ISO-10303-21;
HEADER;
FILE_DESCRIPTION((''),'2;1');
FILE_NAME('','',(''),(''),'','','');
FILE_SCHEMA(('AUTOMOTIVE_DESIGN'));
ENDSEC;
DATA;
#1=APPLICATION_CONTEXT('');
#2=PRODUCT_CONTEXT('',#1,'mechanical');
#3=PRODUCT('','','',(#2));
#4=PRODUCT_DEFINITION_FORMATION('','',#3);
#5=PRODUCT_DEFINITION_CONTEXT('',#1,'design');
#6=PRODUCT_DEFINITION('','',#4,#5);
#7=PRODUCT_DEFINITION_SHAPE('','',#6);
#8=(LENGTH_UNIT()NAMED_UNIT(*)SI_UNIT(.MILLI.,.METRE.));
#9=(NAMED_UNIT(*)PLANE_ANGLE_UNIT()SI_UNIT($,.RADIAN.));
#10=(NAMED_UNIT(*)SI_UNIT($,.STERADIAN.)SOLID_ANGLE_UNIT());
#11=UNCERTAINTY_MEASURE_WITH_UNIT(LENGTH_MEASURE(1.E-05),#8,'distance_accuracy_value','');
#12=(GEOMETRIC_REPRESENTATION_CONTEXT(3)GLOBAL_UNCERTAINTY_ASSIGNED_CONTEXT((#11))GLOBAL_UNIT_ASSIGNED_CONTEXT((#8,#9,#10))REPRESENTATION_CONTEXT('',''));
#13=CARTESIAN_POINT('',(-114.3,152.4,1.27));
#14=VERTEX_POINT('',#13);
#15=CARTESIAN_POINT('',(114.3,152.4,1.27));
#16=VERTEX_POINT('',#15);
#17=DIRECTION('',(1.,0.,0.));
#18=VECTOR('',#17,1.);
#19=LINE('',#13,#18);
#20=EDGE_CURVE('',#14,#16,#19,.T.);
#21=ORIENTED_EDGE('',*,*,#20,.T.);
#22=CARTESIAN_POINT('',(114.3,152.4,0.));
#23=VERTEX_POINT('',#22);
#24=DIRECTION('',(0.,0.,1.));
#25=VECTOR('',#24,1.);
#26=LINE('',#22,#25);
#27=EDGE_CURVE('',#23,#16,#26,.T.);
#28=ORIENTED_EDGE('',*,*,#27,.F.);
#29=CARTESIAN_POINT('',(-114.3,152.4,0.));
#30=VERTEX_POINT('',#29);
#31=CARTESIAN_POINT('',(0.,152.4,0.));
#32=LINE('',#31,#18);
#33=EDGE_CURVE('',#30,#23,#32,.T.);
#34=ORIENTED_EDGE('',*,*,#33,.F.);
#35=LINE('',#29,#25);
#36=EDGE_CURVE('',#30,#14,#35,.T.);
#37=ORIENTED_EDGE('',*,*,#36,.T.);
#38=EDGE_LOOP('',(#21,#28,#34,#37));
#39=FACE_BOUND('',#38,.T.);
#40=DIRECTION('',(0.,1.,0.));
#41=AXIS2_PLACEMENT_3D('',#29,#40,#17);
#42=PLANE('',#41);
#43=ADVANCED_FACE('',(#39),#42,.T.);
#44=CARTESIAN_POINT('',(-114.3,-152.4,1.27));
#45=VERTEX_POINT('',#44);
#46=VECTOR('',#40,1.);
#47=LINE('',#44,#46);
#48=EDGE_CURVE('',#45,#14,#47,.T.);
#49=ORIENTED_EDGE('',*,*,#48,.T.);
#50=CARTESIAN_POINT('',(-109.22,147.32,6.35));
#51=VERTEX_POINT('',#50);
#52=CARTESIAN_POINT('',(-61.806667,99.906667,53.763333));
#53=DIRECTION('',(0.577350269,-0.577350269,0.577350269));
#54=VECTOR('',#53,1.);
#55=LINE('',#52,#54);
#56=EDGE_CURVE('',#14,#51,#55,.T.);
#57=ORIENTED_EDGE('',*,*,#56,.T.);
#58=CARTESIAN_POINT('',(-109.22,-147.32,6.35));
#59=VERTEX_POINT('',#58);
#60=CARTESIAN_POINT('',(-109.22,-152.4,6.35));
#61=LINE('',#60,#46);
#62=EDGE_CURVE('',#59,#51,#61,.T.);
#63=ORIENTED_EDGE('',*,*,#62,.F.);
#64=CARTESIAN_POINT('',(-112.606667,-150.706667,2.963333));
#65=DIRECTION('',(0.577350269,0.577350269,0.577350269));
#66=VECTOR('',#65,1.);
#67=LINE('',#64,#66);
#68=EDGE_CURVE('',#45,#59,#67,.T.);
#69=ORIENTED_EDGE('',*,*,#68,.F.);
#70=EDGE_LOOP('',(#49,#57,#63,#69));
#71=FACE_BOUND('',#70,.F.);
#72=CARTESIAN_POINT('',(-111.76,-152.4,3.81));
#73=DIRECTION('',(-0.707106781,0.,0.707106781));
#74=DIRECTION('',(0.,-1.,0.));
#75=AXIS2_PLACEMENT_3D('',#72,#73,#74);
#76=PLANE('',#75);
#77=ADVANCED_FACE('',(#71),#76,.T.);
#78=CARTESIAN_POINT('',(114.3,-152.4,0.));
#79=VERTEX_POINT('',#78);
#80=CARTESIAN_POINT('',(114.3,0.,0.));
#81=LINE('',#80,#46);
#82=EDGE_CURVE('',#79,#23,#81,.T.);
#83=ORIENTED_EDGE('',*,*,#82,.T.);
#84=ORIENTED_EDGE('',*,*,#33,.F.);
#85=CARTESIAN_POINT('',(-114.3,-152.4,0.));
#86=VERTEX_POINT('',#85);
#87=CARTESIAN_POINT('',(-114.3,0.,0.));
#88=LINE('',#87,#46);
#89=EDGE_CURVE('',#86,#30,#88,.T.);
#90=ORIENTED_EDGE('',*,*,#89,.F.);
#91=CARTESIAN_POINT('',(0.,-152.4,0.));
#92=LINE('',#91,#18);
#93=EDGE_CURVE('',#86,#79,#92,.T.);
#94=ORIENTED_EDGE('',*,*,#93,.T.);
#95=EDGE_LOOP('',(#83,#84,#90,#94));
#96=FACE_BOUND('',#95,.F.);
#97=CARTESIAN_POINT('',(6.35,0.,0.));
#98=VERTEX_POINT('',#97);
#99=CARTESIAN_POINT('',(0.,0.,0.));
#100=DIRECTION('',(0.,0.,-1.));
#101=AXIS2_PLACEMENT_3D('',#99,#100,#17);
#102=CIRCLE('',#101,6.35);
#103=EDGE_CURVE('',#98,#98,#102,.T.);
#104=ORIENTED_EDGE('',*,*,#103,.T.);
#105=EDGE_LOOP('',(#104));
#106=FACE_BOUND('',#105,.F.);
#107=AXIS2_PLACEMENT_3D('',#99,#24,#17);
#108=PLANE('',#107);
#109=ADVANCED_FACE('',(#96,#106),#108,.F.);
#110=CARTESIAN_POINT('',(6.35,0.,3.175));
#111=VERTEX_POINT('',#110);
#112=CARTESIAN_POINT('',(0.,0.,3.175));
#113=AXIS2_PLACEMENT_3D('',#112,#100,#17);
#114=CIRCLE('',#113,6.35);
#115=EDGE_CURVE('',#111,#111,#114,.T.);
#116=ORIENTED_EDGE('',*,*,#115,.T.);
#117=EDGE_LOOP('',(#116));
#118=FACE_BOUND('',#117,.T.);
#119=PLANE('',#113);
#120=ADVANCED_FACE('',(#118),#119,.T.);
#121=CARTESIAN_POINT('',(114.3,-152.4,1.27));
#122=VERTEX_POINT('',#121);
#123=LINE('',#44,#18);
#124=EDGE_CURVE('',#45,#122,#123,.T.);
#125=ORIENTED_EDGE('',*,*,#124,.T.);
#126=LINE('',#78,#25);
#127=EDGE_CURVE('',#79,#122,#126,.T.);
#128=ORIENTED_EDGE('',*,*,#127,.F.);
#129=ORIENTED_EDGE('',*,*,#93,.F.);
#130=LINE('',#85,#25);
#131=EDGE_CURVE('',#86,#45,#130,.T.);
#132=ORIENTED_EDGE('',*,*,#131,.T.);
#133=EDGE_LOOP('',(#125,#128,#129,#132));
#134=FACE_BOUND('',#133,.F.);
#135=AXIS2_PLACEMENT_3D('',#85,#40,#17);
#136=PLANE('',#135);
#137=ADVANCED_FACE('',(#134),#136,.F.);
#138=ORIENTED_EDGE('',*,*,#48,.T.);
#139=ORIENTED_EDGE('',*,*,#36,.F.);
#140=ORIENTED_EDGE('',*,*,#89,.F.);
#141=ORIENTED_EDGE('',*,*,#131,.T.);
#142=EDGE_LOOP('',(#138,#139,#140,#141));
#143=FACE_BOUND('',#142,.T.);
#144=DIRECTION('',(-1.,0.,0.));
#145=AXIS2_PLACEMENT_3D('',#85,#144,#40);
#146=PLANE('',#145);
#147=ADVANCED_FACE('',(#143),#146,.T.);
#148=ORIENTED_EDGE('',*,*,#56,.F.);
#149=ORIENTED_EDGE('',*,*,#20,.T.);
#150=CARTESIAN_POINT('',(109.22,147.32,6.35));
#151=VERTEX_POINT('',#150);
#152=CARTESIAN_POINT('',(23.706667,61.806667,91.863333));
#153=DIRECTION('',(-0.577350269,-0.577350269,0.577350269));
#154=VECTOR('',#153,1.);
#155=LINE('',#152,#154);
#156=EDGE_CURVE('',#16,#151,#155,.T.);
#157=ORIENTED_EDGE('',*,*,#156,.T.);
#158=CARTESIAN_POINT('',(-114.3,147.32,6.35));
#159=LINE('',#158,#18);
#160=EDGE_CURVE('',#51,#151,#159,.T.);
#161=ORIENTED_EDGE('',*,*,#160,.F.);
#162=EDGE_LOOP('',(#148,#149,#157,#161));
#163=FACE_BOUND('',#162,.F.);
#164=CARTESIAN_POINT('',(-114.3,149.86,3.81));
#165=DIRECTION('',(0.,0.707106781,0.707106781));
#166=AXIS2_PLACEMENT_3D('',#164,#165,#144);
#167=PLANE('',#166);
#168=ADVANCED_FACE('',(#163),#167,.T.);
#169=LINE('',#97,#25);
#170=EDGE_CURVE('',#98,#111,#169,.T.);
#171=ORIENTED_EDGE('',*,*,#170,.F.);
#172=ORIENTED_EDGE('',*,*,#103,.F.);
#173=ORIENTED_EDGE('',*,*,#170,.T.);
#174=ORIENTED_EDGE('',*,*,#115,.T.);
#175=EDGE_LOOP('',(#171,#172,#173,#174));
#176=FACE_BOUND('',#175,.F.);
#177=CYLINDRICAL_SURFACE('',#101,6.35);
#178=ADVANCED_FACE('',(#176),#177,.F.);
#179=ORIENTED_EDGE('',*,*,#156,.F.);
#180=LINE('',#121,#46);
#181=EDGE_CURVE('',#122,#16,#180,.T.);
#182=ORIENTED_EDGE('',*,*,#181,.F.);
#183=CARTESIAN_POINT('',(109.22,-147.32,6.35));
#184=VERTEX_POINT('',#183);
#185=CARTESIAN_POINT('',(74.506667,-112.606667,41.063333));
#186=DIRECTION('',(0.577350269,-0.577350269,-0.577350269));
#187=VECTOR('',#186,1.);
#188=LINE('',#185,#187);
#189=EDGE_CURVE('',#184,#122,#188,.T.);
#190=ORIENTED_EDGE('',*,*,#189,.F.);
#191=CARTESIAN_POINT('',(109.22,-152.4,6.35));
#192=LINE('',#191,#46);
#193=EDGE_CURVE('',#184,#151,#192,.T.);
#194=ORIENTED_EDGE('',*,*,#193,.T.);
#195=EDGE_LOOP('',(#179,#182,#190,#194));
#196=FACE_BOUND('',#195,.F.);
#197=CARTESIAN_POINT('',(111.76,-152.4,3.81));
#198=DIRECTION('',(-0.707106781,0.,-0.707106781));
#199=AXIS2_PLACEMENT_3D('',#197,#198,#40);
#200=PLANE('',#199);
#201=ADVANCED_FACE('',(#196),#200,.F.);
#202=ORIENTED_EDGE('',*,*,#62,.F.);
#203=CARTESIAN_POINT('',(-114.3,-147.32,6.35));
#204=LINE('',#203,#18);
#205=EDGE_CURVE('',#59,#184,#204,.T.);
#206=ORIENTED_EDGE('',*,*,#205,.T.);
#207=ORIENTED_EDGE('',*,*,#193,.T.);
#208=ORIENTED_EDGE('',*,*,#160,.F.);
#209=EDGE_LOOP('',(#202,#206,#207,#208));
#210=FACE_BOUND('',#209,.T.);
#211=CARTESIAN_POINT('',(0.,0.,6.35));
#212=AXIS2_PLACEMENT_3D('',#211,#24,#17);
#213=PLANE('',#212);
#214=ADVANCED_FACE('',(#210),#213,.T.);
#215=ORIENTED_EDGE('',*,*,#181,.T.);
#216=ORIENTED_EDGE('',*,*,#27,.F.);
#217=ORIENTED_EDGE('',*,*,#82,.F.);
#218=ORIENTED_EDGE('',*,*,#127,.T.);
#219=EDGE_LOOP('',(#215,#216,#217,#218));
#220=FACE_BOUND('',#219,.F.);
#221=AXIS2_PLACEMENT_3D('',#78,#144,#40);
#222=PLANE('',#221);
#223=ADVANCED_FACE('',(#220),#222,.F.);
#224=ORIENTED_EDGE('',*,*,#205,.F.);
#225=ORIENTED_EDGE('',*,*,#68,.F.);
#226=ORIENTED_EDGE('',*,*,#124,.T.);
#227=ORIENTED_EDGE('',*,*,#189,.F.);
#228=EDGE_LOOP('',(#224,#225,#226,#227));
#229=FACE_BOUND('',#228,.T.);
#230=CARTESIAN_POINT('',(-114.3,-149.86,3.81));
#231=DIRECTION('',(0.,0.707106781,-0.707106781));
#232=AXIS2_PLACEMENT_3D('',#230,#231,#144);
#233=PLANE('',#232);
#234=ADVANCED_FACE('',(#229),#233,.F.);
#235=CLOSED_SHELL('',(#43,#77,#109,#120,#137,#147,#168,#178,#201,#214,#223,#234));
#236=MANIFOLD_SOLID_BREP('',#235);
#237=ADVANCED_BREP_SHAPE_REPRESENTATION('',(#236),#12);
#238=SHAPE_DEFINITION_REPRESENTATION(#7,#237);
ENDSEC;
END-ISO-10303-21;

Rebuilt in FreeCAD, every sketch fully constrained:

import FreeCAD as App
import Part
import Sketcher

V = App.Vector
Q = App.Units.Quantity


def edges_at(feature, points):
    """Names of the edges that pass closest to the given points."""
    edges = feature.Shape.Edges
    near = lambda p: min(range(len(edges)), key=lambda i: edges[i].distToShape(Part.Vertex(*p))[0])
    return sorted({f"Edge{near(p) + 1}" for p in points})


def add_polygon(sketch, points):
    """Adds a closed chain of lines whose ends are joined by coincident constraints."""
    first, n = sketch.GeometryCount, len(points)
    for a, b in zip(points, points[1:] + points[:1]):
        sketch.addGeometry(Part.LineSegment(App.Vector(*a, 0), App.Vector(*b, 0)), False)
    for i in range(n):
        sketch.addConstraint(Sketcher.Constraint("Coincident", first + i, 2, first + (i + 1) % n, 1))

doc = App.newDocument("Part")
body = doc.addObject("PartDesign::Body", "Body")

# Sketch on XY plane
sketch1 = body.newObject("Sketcher::SketchObject", "Sketch")
sketch1.AttachmentSupport = (doc.getObject("XY_Plane"), [""])
sketch1.MapMode = "FlatFace"
add_polygon(sketch1, [(-114, 152), (-114, -152), (114, -152), (114, 152)])  # lines 0-3
sketch1.addConstraint([
    Sketcher.Constraint("Vertical", 0),
    Sketcher.Constraint("Horizontal", 1),
    Sketcher.Constraint("Vertical", 2),
    Sketcher.Constraint("Horizontal", 3),
    Sketcher.Constraint("Symmetric", 0, 2, 2, 2, -1, 1),
    Sketcher.Constraint("DistanceX", 1, 1, 1, 2, Q("9 in")),
    Sketcher.Constraint("DistanceY", 0, 2, 0, 1, Q("12 in")),
])
pad1 = body.newObject("PartDesign::Pad", "Pad")
pad1.Profile = sketch1
pad1.Length = Q("0.25 in")

# Sketch on XY plane
sketch2 = body.newObject("Sketcher::SketchObject", "Sketch001")
sketch2.AttachmentSupport = (doc.getObject("XY_Plane"), [""])
sketch2.MapMode = "FlatFace"
sketch2.addGeometry(Part.Circle(V(0, 0, 0), V(0, 0, 1), 6), False)
sketch2.addConstraint([
    Sketcher.Constraint("Coincident", 0, 3, -1, 1),
    Sketcher.Constraint("Diameter", 0, Q("0.5 in")),
])
pocket1 = body.newObject("PartDesign::Pocket", "Pocket")
pocket1.Profile = sketch2
pocket1.Length = Q("0.125 in")
pocket1.Reversed = True
doc.recompute()

chamfer = body.newObject("PartDesign::Chamfer", "Chamfer")
chamfer.Base = (pocket1, edges_at(pocket1, [
    (-114.3, 0, 6.35),
    (0, 152.4, 6.35),
    (114.3, 0, 6.35),
    (0, -152.4, 6.35),
]))
chamfer.Size = Q("0.2 in")

doc.recompute()
